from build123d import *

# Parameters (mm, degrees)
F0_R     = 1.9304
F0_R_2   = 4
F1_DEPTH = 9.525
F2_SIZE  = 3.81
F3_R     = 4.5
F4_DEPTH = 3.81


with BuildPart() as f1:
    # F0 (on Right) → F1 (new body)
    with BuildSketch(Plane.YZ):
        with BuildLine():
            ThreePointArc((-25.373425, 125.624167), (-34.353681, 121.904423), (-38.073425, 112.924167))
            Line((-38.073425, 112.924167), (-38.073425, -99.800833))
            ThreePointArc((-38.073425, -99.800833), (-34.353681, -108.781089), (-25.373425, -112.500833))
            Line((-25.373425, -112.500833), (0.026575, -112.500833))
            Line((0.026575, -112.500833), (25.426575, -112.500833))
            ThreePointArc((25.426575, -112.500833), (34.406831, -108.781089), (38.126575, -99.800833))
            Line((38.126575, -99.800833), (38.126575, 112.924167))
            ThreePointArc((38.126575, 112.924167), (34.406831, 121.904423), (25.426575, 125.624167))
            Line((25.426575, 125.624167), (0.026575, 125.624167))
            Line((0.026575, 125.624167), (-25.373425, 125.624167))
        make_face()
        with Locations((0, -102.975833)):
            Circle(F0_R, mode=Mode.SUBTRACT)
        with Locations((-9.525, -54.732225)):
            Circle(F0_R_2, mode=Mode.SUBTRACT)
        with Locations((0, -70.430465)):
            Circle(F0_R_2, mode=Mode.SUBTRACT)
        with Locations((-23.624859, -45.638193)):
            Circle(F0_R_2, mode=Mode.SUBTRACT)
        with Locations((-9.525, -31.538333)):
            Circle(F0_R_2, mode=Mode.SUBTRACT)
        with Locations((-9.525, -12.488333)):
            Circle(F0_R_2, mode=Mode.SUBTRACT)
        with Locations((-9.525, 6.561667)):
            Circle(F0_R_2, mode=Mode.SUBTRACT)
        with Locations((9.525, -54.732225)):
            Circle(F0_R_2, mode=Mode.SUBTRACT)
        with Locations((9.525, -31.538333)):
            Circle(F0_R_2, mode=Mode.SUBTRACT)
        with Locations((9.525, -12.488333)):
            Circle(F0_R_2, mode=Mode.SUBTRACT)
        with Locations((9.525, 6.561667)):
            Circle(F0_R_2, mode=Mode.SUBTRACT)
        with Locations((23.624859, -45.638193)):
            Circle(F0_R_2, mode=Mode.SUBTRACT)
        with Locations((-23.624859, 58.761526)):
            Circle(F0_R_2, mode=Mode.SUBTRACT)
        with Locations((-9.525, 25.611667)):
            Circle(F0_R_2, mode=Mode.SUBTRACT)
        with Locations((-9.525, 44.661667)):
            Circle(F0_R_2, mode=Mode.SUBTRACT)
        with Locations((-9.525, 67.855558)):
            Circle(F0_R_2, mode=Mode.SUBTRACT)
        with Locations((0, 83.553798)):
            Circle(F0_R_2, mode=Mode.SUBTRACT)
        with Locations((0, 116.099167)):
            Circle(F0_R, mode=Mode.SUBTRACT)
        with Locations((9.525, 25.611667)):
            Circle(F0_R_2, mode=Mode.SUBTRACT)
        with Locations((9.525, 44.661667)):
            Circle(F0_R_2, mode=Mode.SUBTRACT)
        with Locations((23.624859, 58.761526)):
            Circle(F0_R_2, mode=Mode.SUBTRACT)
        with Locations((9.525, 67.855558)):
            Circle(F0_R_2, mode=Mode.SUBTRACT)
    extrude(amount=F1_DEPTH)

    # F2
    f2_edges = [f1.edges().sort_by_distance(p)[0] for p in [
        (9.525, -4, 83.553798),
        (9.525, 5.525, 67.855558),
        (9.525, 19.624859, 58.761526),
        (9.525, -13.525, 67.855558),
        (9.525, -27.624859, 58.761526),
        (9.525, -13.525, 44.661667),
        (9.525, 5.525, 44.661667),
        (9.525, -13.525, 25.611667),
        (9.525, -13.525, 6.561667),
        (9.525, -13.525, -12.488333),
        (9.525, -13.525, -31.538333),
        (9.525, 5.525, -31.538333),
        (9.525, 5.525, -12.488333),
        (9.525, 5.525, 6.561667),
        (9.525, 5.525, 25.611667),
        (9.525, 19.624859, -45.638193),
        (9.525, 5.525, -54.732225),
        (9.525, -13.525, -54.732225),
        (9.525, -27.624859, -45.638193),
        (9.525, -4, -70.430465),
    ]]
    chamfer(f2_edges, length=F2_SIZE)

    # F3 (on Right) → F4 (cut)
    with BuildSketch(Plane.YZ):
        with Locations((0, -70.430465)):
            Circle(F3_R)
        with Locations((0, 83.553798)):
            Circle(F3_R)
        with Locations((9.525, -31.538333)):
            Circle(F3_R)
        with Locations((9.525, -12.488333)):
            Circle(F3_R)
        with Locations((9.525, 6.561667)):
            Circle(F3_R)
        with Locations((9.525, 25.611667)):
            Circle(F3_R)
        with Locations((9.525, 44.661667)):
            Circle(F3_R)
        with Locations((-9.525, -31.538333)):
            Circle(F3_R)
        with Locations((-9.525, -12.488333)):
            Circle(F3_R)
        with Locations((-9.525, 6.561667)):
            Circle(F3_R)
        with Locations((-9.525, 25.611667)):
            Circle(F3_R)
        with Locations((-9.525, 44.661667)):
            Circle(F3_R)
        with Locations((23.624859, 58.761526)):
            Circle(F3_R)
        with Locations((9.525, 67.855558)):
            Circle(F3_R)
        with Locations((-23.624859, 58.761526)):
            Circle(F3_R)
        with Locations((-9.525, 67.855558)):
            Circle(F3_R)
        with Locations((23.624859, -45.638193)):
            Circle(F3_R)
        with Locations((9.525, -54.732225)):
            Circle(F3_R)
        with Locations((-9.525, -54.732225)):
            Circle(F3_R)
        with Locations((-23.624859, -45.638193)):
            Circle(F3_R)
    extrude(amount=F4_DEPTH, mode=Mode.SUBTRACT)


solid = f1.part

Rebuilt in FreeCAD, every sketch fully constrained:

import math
import FreeCAD as App
import Part
import Sketcher
from FreeCAD import Vector
Q = App.Units.Quantity


def edges_at(feature, points):
    """Names of the edges that pass closest to the given points."""
    edges = feature.Shape.Edges
    near = lambda p: min(range(len(edges)), key=lambda i: edges[i].distToShape(Part.Vertex(*p))[0])
    return sorted({f"Edge{near(p) + 1}" for p in points})

doc = App.newDocument("Part")
params = doc.addObject("Spreadsheet::Sheet", "Params")
for row, (alias, value) in enumerate([
    ("sketch1_radius", "0.5 in"),
    ("sketch1_width", "2 in"),
    ("sketch1_diameter", "0.152 in"),
    ("sketch1_height", "8.375 in"),
    ("pad1_length", "0.375 in"),
    ("chamfer_size", "0.15 in"),
    ("pocket1_length", "0.15 in"),
], start=1):
    params.set(f"A{row}", alias)
    params.set(f"B{row}", "=" + value)
    params.setAlias(f"B{row}", alias)

body = doc.addObject("PartDesign::Body", "Body")

sketch1 = body.newObject("Sketcher::SketchObject", "Sketch")
sketch1.AttachmentSupport = (doc.getObject("YZ_Plane"), [""])
sketch1.MapMode = "FlatFace"
sketch1.addGeometry(Part.ArcOfCircle(Part.Circle(Vector(-25.4, 112.9, 0), Vector(0, 0, 1), 12.7), math.radians(90), math.radians(180)), False)
sketch1.addGeometry(Part.LineSegment(Vector(-38.1, 112.9, 0), Vector(-38.1, -99.8, 0)), False)
sketch1.addGeometry(Part.ArcOfCircle(Part.Circle(Vector(-25.4, -99.8, 0), Vector(0, 0, 1), 12.7), math.radians(-180), math.radians(-90)), False)
sketch1.addGeometry(Part.LineSegment(Vector(-25.4, -112.5, 0), Vector(25.4, -112.5, 0)), False)
sketch1.addGeometry(Part.ArcOfCircle(Part.Circle(Vector(25.4, -99.8, 0), Vector(0, 0, 1), 12.7), math.radians(-90), math.radians(0)), False)
sketch1.addGeometry(Part.LineSegment(Vector(38.1, -99.8, 0), Vector(38.1, 112.9, 0)), False)
sketch1.addGeometry(Part.ArcOfCircle(Part.Circle(Vector(25.4, 112.9, 0), Vector(0, 0, 1), 12.7), math.radians(0), math.radians(90)), False)
sketch1.addGeometry(Part.LineSegment(Vector(25.4, 125.6, 0), Vector(-25.4, 125.6, 0)), False)
sketch1.addGeometry(Part.Circle(Vector(-9.5, -54.7, 0), Vector(0, 0, 1), 4), False)
sketch1.addGeometry(Part.Circle(Vector(-23.6, -45.6, 0), Vector(0, 0, 1), 4), False)
sketch1.addGeometry(Part.Circle(Vector(-9.5, -31.5, 0), Vector(0, 0, 1), 4), False)
sketch1.addGeometry(Part.Circle(Vector(-9.5, -12.5, 0), Vector(0, 0, 1), 4), False)
sketch1.addGeometry(Part.Circle(Vector(0, -103, 0), Vector(0, 0, 1), 1.9), False)
sketch1.addGeometry(Part.Circle(Vector(0, -70.4, 0), Vector(0, 0, 1), 4), False)
sketch1.addGeometry(Part.Circle(Vector(9.5, -54.7, 0), Vector(0, 0, 1), 4), False)
sketch1.addGeometry(Part.Circle(Vector(9.5, -31.5, 0), Vector(0, 0, 1), 4), False)
sketch1.addGeometry(Part.Circle(Vector(9.5, -12.5, 0), Vector(0, 0, 1), 4), False)
sketch1.addGeometry(Part.Circle(Vector(23.6, -45.6, 0), Vector(0, 0, 1), 4), False)
sketch1.addGeometry(Part.Circle(Vector(-23.6, 58.8, 0), Vector(0, 0, 1), 4), False)
sketch1.addGeometry(Part.Circle(Vector(-9.5, 6.6, 0), Vector(0, 0, 1), 4), False)
sketch1.addGeometry(Part.Circle(Vector(-9.5, 25.6, 0), Vector(0, 0, 1), 4), False)
sketch1.addGeometry(Part.Circle(Vector(-9.5, 44.7, 0), Vector(0, 0, 1), 4), False)
sketch1.addGeometry(Part.Circle(Vector(-9.5, 67.9, 0), Vector(0, 0, 1), 4), False)
sketch1.addGeometry(Part.Circle(Vector(9.5, 6.6, 0), Vector(0, 0, 1), 4), False)
sketch1.addGeometry(Part.Circle(Vector(9.5, 25.6, 0), Vector(0, 0, 1), 4), False)
sketch1.addGeometry(Part.Circle(Vector(9.5, 44.7, 0), Vector(0, 0, 1), 4), False)
sketch1.addGeometry(Part.Circle(Vector(23.6, 58.8, 0), Vector(0, 0, 1), 4), False)
sketch1.addGeometry(Part.Circle(Vector(0, 83.6, 0), Vector(0, 0, 1), 4), False)
sketch1.addGeometry(Part.Circle(Vector(9.5, 67.9, 0), Vector(0, 0, 1), 4), False)
sketch1.addGeometry(Part.Circle(Vector(0, 116.1, 0), Vector(0, 0, 1), 1.9), False)
sketch1.addConstraint(Sketcher.Constraint("Tangent", 0, 2, 1, 1))
sketch1.addConstraint(Sketcher.Constraint("Tangent", 1, 2, 2, 1))
sketch1.addConstraint(Sketcher.Constraint("Tangent", 2, 2, 3, 1))
sketch1.addConstraint(Sketcher.Constraint("Tangent", 3, 2, 4, 1))
sketch1.addConstraint(Sketcher.Constraint("Tangent", 4, 2, 5, 1))
sketch1.addConstraint(Sketcher.Constraint("Tangent", 5, 2, 6, 1))
sketch1.addConstraint(Sketcher.Constraint("Tangent", 6, 2, 7, 1))
sketch1.addConstraint(Sketcher.Constraint("Tangent", 7, 2, 0, 1))
sketch1.addConstraint(Sketcher.Constraint("Vertical", 1))
sketch1.addConstraint(Sketcher.Constraint("Horizontal", 3))
sketch1.addConstraint(Sketcher.Constraint("Vertical", 5))
sketch1.addConstraint(Sketcher.Constraint("Horizontal", 7))
sketch1.addConstraint(Sketcher.Constraint("Equal", 0, 2))
sketch1.addConstraint(Sketcher.Constraint("Equal", 2, 4))
sketch1.addConstraint(Sketcher.Constraint("Equal", 4, 6))
sketch1.addConstraint(Sketcher.Constraint("Equal", 8, 9))
sketch1.addConstraint(Sketcher.Constraint("Equal", 9, 10))
sketch1.addConstraint(Sketcher.Constraint("Equal", 10, 11))
sketch1.addConstraint(Sketcher.Constraint("Equal", 11, 13))
sketch1.addConstraint(Sketcher.Constraint("Equal", 13, 14))
sketch1.addConstraint(Sketcher.Constraint("Equal", 14, 15))
sketch1.addConstraint(Sketcher.Constraint("Equal", 15, 16))
sketch1.addConstraint(Sketcher.Constraint("Equal", 16, 17))
sketch1.addConstraint(Sketcher.Constraint("Equal", 17, 18))
sketch1.addConstraint(Sketcher.Constraint("Equal", 18, 19))
sketch1.addConstraint(Sketcher.Constraint("Equal", 19, 20))
sketch1.addConstraint(Sketcher.Constraint("Equal", 20, 21))
sketch1.addConstraint(Sketcher.Constraint("Equal", 21, 22))
sketch1.addConstraint(Sketcher.Constraint("Equal", 22, 23))
sketch1.addConstraint(Sketcher.Constraint("Equal", 23, 24))
sketch1.addConstraint(Sketcher.Constraint("Equal", 24, 25))
sketch1.addConstraint(Sketcher.Constraint("Equal", 25, 26))
sketch1.addConstraint(Sketcher.Constraint("Equal", 26, 27))
sketch1.addConstraint(Sketcher.Constraint("Equal", 27, 28))
sketch1.addConstraint(Sketcher.Constraint("Equal", 12, 29))
sketch1.addConstraint(Sketcher.Constraint("Symmetric", 8, 3, 14, 3, -2))
sketch1.addConstraint(Sketcher.Constraint("Symmetric", 10, 3, 15, 3, -2))
sketch1.addConstraint(Sketcher.Constraint("Symmetric", 11, 3, 16, 3, -2))
sketch1.addConstraint(Sketcher.Constraint("Symmetric", 9, 3, 17, 3, -2))
sketch1.addConstraint(Sketcher.Constraint("Symmetric", 19, 3, 23, 3, -2))
sketch1.addConstraint(Sketcher.Constraint("Symmetric", 20, 3, 24, 3, -2))
sketch1.addConstraint(Sketcher.Constraint("Symmetric", 21, 3, 25, 3, -2))
sketch1.addConstraint(Sketcher.Constraint("Symmetric", 18, 3, 26, 3, -2))
sketch1.addConstraint(Sketcher.Constraint("Symmetric", 22, 3, 28, 3, -2))
sketch1.addConstraint(Sketcher.Constraint("PointOnObject", 12, 3, -2))
sketch1.addConstraint(Sketcher.Constraint("PointOnObject", 13, 3, -2))
sketch1.addConstraint(Sketcher.Constraint("PointOnObject", 27, 3, -2))
sketch1.addConstraint(Sketcher.Constraint("PointOnObject", 29, 3, -2))
sketch1.addConstraint(Sketcher.Constraint("Vertical", 8, 3, 10, 3))
sketch1.addConstraint(Sketcher.Constraint("Vertical", 10, 3, 11, 3))
sketch1.addConstraint(Sketcher.Constraint("Vertical", 9, 3, 18, 3))
sketch1.addConstraint(Sketcher.Constraint("Vertical", 11, 3, 19, 3))
sketch1.addConstraint(Sketcher.Constraint("Vertical", 19, 3, 20, 3))
sketch1.addConstraint(Sketcher.Constraint("Vertical", 20, 3, 21, 3))
sketch1.addConstraint(Sketcher.Constraint("Vertical", 21, 3, 22, 3))
sketch1.addConstraint(Sketcher.Constraint("Radius", 0, Q("0.5 in")))
sketch1.addConstraint(Sketcher.Constraint("DistanceX", 3, 1, 3, 2, Q("2 in")))
sketch1.addConstraint(Sketcher.Constraint("Diameter", 12, Q("0.152 in")))
sketch1.addConstraint(Sketcher.Constraint("DistanceY", 10, 3, 19, 3, Q("1.5 in")))
sketch1.addConstraint(Sketcher.Constraint("DistanceY", 11, 3, 20, 3, Q("1.5 in")))
sketch1.addConstraint(Sketcher.Constraint("DistanceY", 19, 3, 21, 3, Q("1.5 in")))
sketch1.addConstraint(Sketcher.Constraint("Diameter", 8, Q("8 mm")))
sketch1.addConstraint(Sketcher.Constraint("DistanceY", 1, 2, 1, 1, Q("8.375 in")))
sketch1.addConstraint(Sketcher.Constraint("DistanceY", 10, 3, 11, 3, Q("0.75 in")))
sketch1.addConstraint(Sketcher.Constraint("DistanceX", 8, 3, 14, 3, Q("0.75 in")))
sketch1.addConstraint(Sketcher.Constraint("DistanceY", 2, 3, 10, 3, Q("2.6875 in")))
sketch1.addConstraint(Sketcher.Constraint("DistanceY", 12, 3, 2, 3, Q("0.125 in")))
sketch1.addConstraint(Sketcher.Constraint("DistanceY", 0, 3, 29, 3, Q("0.125 in")))
sketch1.addConstraint(Sketcher.Constraint("DistanceY", -1, 1, 27, 3, Q("83.553798 mm")))
sketch1.addConstraint(Sketcher.Constraint("DistanceX", 9, 3, -1, 1, Q("23.624859 mm")))
sketch1.addConstraint(Sketcher.Constraint("DistanceY", -1, 1, 22, 3, Q("67.855558 mm")))
sketch1.addConstraint(Sketcher.Constraint("DistanceY", 8, 3, 0, 3, Q("167.656392 mm")))
sketch1.addConstraint(Sketcher.Constraint("DistanceY", 8, 3, 9, 3, Q("9.094032 mm")))
sketch1.addConstraint(Sketcher.Constraint("DistanceY", 13, 3, 8, 3, Q("15.69824 mm")))
sketch1.addConstraint(Sketcher.Constraint("DistanceY", 18, 3, 0, 3, Q("54.162641 mm")))
sketch1.addConstraint(Sketcher.Constraint("DistanceY", 18, 3, 22, 3, Q("9.094032 mm")))
sketch1.addConstraint(Sketcher.Constraint("DistanceX", 0, 3, -1, 1, Q("25.373425 mm")))
sketch1.setExpression("Constraints[55]", "Params.sketch1_radius")
sketch1.setExpression("Constraints[56]", "Params.sketch1_width")
sketch1.setExpression("Constraints[57]", "Params.sketch1_diameter")
sketch1.setExpression("Constraints[62]", "Params.sketch1_height")
pad1 = body.newObject("PartDesign::Pad", "Pad")
pad1.Profile = sketch1
pad1.setExpression("Length", "Params.pad1_length")
doc.recompute()

chamfer = body.newObject("PartDesign::Chamfer", "Chamfer")
chamfer.Base = (pad1, edges_at(pad1, [
    (9.525, -4, 83.554),
    (9.525, 5.525, 67.856),
    (9.525, 19.625, 58.762),
    (9.525, -13.525, 67.856),
    (9.525, -27.625, 58.762),
    (9.525, -13.525, 44.662),
    (9.525, 5.525, 44.662),
    (9.525, -13.525, 25.612),
    (9.525, -13.525, 6.562),
    (9.525, -13.525, -12.488),
    (9.525, -13.525, -31.538),
    (9.525, 5.525, -31.538),
    (9.525, 5.525, -12.488),
    (9.525, 5.525, 6.562),
    (9.525, 5.525, 25.612),
    (9.525, 19.625, -45.638),
    (9.525, 5.525, -54.732),
    (9.525, -13.525, -54.732),
    (9.525, -27.625, -45.638),
    (9.525, -4, -70.43),
]))
chamfer.setExpression("Size", "Params.chamfer_size")

sketch2 = body.newObject("Sketcher::SketchObject", "Sketch001")
sketch2.AttachmentSupport = (doc.getObject("YZ_Plane"), [""])
sketch2.MapMode = "FlatFace"
sketch2.addGeometry(Part.Circle(Vector(0, -70.4, 0), Vector(0, 0, 1), 4.5), False)
sketch2.addGeometry(Part.Circle(Vector(0, 83.6, 0), Vector(0, 0, 1), 4.5), False)
sketch2.addGeometry(Part.Circle(Vector(9.5, -31.5, 0), Vector(0, 0, 1), 4.5), False)
sketch2.addGeometry(Part.Circle(Vector(9.5, -12.5, 0), Vector(0, 0, 1), 4.5), False)
sketch2.addGeometry(Part.Circle(Vector(9.5, 6.6, 0), Vector(0, 0, 1), 4.5), False)
sketch2.addGeometry(Part.Circle(Vector(9.5, 25.6, 0), Vector(0, 0, 1), 4.5), False)
sketch2.addGeometry(Part.Circle(Vector(9.5, 44.7, 0), Vector(0, 0, 1), 4.5), False)
sketch2.addGeometry(Part.Circle(Vector(-9.5, -31.5, 0), Vector(0, 0, 1), 4.5), False)
sketch2.addGeometry(Part.Circle(Vector(-9.5, -12.5, 0), Vector(0, 0, 1), 4.5), False)
sketch2.addGeometry(Part.Circle(Vector(-9.5, 6.6, 0), Vector(0, 0, 1), 4.5), False)
sketch2.addGeometry(Part.Circle(Vector(-9.5, 25.6, 0), Vector(0, 0, 1), 4.5), False)
sketch2.addGeometry(Part.Circle(Vector(-9.5, 44.7, 0), Vector(0, 0, 1), 4.5), False)
sketch2.addGeometry(Part.Circle(Vector(23.6, 58.8, 0), Vector(0, 0, 1), 4.5), False)
sketch2.addGeometry(Part.Circle(Vector(9.5, 67.9, 0), Vector(0, 0, 1), 4.5), False)
sketch2.addGeometry(Part.Circle(Vector(-23.6, 58.8, 0), Vector(0, 0, 1), 4.5), False)
sketch2.addGeometry(Part.Circle(Vector(-9.5, 67.9, 0), Vector(0, 0, 1), 4.5), False)
sketch2.addGeometry(Part.Circle(Vector(23.6, -45.6, 0), Vector(0, 0, 1), 4.5), False)
sketch2.addGeometry(Part.Circle(Vector(9.5, -54.7, 0), Vector(0, 0, 1), 4.5), False)
sketch2.addGeometry(Part.Circle(Vector(-9.5, -54.7, 0), Vector(0, 0, 1), 4.5), False)
sketch2.addGeometry(Part.Circle(Vector(-23.6, -45.6, 0), Vector(0, 0, 1), 4.5), False)
sketch2.addConstraint(Sketcher.Constraint("Equal", 0, 1))
sketch2.addConstraint(Sketcher.Constraint("Equal", 1, 2))
sketch2.addConstraint(Sketcher.Constraint("Equal", 2, 3))
sketch2.addConstraint(Sketcher.Constraint("Equal", 3, 4))
sketch2.addConstraint(Sketcher.Constraint("Equal", 4, 5))
sketch2.addConstraint(Sketcher.Constraint("Equal", 5, 6))
sketch2.addConstraint(Sketcher.Constraint("Equal", 6, 7))
sketch2.addConstraint(Sketcher.Constraint("Equal", 7, 8))
sketch2.addConstraint(Sketcher.Constraint("Equal", 8, 9))
sketch2.addConstraint(Sketcher.Constraint("Equal", 9, 10))
sketch2.addConstraint(Sketcher.Constraint("Equal", 10, 11))
sketch2.addConstraint(Sketcher.Constraint("Equal", 11, 12))
sketch2.addConstraint(Sketcher.Constraint("Equal", 12, 13))
sketch2.addConstraint(Sketcher.Constraint("Equal", 13, 14))
sketch2.addConstraint(Sketcher.Constraint("Equal", 14, 15))
sketch2.addConstraint(Sketcher.Constraint("Equal", 15, 16))
sketch2.addConstraint(Sketcher.Constraint("Equal", 16, 17))
sketch2.addConstraint(Sketcher.Constraint("Equal", 17, 18))
sketch2.addConstraint(Sketcher.Constraint("Equal", 18, 19))
sketch2.addConstraint(Sketcher.Constraint("Symmetric", 2, 3, 7, 3, -2))
sketch2.addConstraint(Sketcher.Constraint("Symmetric", 3, 3, 8, 3, -2))
sketch2.addConstraint(Sketcher.Constraint("Symmetric", 4, 3, 9, 3, -2))
sketch2.addConstraint(Sketcher.Constraint("Symmetric", 5, 3, 10, 3, -2))
sketch2.addConstraint(Sketcher.Constraint("Symmetric", 6, 3, 11, 3, -2))
sketch2.addConstraint(Sketcher.Constraint("Symmetric", 12, 3, 14, 3, -2))
sketch2.addConstraint(Sketcher.Constraint("Symmetric", 13, 3, 15, 3, -2))
sketch2.addConstraint(Sketcher.Constraint("Symmetric", 17, 3, 18, 3, -2))
sketch2.addConstraint(Sketcher.Constraint("Symmetric", 16, 3, 19, 3, -2))
sketch2.addConstraint(Sketcher.Constraint("PointOnObject", 0, 3, -2))
sketch2.addConstraint(Sketcher.Constraint("PointOnObject", 1, 3, -2))
sketch2.addConstraint(Sketcher.Constraint("Vertical", 2, 3, 3, 3))
sketch2.addConstraint(Sketcher.Constraint("Vertical", 3, 3, 4, 3))
sketch2.addConstraint(Sketcher.Constraint("Vertical", 4, 3, 5, 3))
sketch2.addConstraint(Sketcher.Constraint("Vertical", 5, 3, 6, 3))
sketch2.addConstraint(Sketcher.Constraint("Vertical", 6, 3, 13, 3))
sketch2.addConstraint(Sketcher.Constraint("Vertical", 12, 3, 16, 3))
sketch2.addConstraint(Sketcher.Constraint("Vertical", 13, 3, 17, 3))
sketch2.addConstraint(Sketcher.Constraint("DistanceY", 2, 3, 6, 3, Q("3 in")))
sketch2.addConstraint(Sketcher.Constraint("DistanceY", 2, 3, 4, 3, Q("1.5 in")))
sketch2.addConstraint(Sketcher.Constraint("DistanceY", 3, 3, 5, 3, Q("1.5 in")))
sketch2.addConstraint(Sketcher.Constraint("Diameter", 0, Q("9 mm")))
sketch2.addConstraint(Sketcher.Constraint("DistanceY", 2, 3, 3, 3, Q("0.75 in")))
sketch2.addConstraint(Sketcher.Constraint("DistanceX", 7, 3, 2, 3, Q("0.75 in")))
sketch2.addConstraint(Sketcher.Constraint("DistanceY", -1, 1, 1, 3, Q("83.553798 mm")))
sketch2.addConstraint(Sketcher.Constraint("DistanceX", -1, 1, 12, 3, Q("23.624859 mm")))
sketch2.addConstraint(Sketcher.Constraint("DistanceY", -1, 1, 13, 3, Q("67.855558 mm")))
sketch2.addConstraint(Sketcher.Constraint("DistanceY", 0, 3, 2, 3, Q("38.892132 mm")))
sketch2.addConstraint(Sketcher.Constraint("DistanceY", 2, 3, 1, 3, Q("115.092131 mm")))
sketch2.addConstraint(Sketcher.Constraint("DistanceY", 6, 3, 12, 3, Q("14.099859 mm")))
sketch2.addConstraint(Sketcher.Constraint("DistanceY", 16, 3, 2, 3, Q("14.09986 mm")))
sketch2.addConstraint(Sketcher.Constraint("DistanceY", 17, 3, 16, 3, Q("9.094032 mm")))
pocket1 = body.newObject("PartDesign::Pocket", "Pocket")
pocket1.Profile = sketch2
pocket1.setExpression("Length", "Params.pocket1_length")
pocket1.Reversed = True

doc.recompute()
